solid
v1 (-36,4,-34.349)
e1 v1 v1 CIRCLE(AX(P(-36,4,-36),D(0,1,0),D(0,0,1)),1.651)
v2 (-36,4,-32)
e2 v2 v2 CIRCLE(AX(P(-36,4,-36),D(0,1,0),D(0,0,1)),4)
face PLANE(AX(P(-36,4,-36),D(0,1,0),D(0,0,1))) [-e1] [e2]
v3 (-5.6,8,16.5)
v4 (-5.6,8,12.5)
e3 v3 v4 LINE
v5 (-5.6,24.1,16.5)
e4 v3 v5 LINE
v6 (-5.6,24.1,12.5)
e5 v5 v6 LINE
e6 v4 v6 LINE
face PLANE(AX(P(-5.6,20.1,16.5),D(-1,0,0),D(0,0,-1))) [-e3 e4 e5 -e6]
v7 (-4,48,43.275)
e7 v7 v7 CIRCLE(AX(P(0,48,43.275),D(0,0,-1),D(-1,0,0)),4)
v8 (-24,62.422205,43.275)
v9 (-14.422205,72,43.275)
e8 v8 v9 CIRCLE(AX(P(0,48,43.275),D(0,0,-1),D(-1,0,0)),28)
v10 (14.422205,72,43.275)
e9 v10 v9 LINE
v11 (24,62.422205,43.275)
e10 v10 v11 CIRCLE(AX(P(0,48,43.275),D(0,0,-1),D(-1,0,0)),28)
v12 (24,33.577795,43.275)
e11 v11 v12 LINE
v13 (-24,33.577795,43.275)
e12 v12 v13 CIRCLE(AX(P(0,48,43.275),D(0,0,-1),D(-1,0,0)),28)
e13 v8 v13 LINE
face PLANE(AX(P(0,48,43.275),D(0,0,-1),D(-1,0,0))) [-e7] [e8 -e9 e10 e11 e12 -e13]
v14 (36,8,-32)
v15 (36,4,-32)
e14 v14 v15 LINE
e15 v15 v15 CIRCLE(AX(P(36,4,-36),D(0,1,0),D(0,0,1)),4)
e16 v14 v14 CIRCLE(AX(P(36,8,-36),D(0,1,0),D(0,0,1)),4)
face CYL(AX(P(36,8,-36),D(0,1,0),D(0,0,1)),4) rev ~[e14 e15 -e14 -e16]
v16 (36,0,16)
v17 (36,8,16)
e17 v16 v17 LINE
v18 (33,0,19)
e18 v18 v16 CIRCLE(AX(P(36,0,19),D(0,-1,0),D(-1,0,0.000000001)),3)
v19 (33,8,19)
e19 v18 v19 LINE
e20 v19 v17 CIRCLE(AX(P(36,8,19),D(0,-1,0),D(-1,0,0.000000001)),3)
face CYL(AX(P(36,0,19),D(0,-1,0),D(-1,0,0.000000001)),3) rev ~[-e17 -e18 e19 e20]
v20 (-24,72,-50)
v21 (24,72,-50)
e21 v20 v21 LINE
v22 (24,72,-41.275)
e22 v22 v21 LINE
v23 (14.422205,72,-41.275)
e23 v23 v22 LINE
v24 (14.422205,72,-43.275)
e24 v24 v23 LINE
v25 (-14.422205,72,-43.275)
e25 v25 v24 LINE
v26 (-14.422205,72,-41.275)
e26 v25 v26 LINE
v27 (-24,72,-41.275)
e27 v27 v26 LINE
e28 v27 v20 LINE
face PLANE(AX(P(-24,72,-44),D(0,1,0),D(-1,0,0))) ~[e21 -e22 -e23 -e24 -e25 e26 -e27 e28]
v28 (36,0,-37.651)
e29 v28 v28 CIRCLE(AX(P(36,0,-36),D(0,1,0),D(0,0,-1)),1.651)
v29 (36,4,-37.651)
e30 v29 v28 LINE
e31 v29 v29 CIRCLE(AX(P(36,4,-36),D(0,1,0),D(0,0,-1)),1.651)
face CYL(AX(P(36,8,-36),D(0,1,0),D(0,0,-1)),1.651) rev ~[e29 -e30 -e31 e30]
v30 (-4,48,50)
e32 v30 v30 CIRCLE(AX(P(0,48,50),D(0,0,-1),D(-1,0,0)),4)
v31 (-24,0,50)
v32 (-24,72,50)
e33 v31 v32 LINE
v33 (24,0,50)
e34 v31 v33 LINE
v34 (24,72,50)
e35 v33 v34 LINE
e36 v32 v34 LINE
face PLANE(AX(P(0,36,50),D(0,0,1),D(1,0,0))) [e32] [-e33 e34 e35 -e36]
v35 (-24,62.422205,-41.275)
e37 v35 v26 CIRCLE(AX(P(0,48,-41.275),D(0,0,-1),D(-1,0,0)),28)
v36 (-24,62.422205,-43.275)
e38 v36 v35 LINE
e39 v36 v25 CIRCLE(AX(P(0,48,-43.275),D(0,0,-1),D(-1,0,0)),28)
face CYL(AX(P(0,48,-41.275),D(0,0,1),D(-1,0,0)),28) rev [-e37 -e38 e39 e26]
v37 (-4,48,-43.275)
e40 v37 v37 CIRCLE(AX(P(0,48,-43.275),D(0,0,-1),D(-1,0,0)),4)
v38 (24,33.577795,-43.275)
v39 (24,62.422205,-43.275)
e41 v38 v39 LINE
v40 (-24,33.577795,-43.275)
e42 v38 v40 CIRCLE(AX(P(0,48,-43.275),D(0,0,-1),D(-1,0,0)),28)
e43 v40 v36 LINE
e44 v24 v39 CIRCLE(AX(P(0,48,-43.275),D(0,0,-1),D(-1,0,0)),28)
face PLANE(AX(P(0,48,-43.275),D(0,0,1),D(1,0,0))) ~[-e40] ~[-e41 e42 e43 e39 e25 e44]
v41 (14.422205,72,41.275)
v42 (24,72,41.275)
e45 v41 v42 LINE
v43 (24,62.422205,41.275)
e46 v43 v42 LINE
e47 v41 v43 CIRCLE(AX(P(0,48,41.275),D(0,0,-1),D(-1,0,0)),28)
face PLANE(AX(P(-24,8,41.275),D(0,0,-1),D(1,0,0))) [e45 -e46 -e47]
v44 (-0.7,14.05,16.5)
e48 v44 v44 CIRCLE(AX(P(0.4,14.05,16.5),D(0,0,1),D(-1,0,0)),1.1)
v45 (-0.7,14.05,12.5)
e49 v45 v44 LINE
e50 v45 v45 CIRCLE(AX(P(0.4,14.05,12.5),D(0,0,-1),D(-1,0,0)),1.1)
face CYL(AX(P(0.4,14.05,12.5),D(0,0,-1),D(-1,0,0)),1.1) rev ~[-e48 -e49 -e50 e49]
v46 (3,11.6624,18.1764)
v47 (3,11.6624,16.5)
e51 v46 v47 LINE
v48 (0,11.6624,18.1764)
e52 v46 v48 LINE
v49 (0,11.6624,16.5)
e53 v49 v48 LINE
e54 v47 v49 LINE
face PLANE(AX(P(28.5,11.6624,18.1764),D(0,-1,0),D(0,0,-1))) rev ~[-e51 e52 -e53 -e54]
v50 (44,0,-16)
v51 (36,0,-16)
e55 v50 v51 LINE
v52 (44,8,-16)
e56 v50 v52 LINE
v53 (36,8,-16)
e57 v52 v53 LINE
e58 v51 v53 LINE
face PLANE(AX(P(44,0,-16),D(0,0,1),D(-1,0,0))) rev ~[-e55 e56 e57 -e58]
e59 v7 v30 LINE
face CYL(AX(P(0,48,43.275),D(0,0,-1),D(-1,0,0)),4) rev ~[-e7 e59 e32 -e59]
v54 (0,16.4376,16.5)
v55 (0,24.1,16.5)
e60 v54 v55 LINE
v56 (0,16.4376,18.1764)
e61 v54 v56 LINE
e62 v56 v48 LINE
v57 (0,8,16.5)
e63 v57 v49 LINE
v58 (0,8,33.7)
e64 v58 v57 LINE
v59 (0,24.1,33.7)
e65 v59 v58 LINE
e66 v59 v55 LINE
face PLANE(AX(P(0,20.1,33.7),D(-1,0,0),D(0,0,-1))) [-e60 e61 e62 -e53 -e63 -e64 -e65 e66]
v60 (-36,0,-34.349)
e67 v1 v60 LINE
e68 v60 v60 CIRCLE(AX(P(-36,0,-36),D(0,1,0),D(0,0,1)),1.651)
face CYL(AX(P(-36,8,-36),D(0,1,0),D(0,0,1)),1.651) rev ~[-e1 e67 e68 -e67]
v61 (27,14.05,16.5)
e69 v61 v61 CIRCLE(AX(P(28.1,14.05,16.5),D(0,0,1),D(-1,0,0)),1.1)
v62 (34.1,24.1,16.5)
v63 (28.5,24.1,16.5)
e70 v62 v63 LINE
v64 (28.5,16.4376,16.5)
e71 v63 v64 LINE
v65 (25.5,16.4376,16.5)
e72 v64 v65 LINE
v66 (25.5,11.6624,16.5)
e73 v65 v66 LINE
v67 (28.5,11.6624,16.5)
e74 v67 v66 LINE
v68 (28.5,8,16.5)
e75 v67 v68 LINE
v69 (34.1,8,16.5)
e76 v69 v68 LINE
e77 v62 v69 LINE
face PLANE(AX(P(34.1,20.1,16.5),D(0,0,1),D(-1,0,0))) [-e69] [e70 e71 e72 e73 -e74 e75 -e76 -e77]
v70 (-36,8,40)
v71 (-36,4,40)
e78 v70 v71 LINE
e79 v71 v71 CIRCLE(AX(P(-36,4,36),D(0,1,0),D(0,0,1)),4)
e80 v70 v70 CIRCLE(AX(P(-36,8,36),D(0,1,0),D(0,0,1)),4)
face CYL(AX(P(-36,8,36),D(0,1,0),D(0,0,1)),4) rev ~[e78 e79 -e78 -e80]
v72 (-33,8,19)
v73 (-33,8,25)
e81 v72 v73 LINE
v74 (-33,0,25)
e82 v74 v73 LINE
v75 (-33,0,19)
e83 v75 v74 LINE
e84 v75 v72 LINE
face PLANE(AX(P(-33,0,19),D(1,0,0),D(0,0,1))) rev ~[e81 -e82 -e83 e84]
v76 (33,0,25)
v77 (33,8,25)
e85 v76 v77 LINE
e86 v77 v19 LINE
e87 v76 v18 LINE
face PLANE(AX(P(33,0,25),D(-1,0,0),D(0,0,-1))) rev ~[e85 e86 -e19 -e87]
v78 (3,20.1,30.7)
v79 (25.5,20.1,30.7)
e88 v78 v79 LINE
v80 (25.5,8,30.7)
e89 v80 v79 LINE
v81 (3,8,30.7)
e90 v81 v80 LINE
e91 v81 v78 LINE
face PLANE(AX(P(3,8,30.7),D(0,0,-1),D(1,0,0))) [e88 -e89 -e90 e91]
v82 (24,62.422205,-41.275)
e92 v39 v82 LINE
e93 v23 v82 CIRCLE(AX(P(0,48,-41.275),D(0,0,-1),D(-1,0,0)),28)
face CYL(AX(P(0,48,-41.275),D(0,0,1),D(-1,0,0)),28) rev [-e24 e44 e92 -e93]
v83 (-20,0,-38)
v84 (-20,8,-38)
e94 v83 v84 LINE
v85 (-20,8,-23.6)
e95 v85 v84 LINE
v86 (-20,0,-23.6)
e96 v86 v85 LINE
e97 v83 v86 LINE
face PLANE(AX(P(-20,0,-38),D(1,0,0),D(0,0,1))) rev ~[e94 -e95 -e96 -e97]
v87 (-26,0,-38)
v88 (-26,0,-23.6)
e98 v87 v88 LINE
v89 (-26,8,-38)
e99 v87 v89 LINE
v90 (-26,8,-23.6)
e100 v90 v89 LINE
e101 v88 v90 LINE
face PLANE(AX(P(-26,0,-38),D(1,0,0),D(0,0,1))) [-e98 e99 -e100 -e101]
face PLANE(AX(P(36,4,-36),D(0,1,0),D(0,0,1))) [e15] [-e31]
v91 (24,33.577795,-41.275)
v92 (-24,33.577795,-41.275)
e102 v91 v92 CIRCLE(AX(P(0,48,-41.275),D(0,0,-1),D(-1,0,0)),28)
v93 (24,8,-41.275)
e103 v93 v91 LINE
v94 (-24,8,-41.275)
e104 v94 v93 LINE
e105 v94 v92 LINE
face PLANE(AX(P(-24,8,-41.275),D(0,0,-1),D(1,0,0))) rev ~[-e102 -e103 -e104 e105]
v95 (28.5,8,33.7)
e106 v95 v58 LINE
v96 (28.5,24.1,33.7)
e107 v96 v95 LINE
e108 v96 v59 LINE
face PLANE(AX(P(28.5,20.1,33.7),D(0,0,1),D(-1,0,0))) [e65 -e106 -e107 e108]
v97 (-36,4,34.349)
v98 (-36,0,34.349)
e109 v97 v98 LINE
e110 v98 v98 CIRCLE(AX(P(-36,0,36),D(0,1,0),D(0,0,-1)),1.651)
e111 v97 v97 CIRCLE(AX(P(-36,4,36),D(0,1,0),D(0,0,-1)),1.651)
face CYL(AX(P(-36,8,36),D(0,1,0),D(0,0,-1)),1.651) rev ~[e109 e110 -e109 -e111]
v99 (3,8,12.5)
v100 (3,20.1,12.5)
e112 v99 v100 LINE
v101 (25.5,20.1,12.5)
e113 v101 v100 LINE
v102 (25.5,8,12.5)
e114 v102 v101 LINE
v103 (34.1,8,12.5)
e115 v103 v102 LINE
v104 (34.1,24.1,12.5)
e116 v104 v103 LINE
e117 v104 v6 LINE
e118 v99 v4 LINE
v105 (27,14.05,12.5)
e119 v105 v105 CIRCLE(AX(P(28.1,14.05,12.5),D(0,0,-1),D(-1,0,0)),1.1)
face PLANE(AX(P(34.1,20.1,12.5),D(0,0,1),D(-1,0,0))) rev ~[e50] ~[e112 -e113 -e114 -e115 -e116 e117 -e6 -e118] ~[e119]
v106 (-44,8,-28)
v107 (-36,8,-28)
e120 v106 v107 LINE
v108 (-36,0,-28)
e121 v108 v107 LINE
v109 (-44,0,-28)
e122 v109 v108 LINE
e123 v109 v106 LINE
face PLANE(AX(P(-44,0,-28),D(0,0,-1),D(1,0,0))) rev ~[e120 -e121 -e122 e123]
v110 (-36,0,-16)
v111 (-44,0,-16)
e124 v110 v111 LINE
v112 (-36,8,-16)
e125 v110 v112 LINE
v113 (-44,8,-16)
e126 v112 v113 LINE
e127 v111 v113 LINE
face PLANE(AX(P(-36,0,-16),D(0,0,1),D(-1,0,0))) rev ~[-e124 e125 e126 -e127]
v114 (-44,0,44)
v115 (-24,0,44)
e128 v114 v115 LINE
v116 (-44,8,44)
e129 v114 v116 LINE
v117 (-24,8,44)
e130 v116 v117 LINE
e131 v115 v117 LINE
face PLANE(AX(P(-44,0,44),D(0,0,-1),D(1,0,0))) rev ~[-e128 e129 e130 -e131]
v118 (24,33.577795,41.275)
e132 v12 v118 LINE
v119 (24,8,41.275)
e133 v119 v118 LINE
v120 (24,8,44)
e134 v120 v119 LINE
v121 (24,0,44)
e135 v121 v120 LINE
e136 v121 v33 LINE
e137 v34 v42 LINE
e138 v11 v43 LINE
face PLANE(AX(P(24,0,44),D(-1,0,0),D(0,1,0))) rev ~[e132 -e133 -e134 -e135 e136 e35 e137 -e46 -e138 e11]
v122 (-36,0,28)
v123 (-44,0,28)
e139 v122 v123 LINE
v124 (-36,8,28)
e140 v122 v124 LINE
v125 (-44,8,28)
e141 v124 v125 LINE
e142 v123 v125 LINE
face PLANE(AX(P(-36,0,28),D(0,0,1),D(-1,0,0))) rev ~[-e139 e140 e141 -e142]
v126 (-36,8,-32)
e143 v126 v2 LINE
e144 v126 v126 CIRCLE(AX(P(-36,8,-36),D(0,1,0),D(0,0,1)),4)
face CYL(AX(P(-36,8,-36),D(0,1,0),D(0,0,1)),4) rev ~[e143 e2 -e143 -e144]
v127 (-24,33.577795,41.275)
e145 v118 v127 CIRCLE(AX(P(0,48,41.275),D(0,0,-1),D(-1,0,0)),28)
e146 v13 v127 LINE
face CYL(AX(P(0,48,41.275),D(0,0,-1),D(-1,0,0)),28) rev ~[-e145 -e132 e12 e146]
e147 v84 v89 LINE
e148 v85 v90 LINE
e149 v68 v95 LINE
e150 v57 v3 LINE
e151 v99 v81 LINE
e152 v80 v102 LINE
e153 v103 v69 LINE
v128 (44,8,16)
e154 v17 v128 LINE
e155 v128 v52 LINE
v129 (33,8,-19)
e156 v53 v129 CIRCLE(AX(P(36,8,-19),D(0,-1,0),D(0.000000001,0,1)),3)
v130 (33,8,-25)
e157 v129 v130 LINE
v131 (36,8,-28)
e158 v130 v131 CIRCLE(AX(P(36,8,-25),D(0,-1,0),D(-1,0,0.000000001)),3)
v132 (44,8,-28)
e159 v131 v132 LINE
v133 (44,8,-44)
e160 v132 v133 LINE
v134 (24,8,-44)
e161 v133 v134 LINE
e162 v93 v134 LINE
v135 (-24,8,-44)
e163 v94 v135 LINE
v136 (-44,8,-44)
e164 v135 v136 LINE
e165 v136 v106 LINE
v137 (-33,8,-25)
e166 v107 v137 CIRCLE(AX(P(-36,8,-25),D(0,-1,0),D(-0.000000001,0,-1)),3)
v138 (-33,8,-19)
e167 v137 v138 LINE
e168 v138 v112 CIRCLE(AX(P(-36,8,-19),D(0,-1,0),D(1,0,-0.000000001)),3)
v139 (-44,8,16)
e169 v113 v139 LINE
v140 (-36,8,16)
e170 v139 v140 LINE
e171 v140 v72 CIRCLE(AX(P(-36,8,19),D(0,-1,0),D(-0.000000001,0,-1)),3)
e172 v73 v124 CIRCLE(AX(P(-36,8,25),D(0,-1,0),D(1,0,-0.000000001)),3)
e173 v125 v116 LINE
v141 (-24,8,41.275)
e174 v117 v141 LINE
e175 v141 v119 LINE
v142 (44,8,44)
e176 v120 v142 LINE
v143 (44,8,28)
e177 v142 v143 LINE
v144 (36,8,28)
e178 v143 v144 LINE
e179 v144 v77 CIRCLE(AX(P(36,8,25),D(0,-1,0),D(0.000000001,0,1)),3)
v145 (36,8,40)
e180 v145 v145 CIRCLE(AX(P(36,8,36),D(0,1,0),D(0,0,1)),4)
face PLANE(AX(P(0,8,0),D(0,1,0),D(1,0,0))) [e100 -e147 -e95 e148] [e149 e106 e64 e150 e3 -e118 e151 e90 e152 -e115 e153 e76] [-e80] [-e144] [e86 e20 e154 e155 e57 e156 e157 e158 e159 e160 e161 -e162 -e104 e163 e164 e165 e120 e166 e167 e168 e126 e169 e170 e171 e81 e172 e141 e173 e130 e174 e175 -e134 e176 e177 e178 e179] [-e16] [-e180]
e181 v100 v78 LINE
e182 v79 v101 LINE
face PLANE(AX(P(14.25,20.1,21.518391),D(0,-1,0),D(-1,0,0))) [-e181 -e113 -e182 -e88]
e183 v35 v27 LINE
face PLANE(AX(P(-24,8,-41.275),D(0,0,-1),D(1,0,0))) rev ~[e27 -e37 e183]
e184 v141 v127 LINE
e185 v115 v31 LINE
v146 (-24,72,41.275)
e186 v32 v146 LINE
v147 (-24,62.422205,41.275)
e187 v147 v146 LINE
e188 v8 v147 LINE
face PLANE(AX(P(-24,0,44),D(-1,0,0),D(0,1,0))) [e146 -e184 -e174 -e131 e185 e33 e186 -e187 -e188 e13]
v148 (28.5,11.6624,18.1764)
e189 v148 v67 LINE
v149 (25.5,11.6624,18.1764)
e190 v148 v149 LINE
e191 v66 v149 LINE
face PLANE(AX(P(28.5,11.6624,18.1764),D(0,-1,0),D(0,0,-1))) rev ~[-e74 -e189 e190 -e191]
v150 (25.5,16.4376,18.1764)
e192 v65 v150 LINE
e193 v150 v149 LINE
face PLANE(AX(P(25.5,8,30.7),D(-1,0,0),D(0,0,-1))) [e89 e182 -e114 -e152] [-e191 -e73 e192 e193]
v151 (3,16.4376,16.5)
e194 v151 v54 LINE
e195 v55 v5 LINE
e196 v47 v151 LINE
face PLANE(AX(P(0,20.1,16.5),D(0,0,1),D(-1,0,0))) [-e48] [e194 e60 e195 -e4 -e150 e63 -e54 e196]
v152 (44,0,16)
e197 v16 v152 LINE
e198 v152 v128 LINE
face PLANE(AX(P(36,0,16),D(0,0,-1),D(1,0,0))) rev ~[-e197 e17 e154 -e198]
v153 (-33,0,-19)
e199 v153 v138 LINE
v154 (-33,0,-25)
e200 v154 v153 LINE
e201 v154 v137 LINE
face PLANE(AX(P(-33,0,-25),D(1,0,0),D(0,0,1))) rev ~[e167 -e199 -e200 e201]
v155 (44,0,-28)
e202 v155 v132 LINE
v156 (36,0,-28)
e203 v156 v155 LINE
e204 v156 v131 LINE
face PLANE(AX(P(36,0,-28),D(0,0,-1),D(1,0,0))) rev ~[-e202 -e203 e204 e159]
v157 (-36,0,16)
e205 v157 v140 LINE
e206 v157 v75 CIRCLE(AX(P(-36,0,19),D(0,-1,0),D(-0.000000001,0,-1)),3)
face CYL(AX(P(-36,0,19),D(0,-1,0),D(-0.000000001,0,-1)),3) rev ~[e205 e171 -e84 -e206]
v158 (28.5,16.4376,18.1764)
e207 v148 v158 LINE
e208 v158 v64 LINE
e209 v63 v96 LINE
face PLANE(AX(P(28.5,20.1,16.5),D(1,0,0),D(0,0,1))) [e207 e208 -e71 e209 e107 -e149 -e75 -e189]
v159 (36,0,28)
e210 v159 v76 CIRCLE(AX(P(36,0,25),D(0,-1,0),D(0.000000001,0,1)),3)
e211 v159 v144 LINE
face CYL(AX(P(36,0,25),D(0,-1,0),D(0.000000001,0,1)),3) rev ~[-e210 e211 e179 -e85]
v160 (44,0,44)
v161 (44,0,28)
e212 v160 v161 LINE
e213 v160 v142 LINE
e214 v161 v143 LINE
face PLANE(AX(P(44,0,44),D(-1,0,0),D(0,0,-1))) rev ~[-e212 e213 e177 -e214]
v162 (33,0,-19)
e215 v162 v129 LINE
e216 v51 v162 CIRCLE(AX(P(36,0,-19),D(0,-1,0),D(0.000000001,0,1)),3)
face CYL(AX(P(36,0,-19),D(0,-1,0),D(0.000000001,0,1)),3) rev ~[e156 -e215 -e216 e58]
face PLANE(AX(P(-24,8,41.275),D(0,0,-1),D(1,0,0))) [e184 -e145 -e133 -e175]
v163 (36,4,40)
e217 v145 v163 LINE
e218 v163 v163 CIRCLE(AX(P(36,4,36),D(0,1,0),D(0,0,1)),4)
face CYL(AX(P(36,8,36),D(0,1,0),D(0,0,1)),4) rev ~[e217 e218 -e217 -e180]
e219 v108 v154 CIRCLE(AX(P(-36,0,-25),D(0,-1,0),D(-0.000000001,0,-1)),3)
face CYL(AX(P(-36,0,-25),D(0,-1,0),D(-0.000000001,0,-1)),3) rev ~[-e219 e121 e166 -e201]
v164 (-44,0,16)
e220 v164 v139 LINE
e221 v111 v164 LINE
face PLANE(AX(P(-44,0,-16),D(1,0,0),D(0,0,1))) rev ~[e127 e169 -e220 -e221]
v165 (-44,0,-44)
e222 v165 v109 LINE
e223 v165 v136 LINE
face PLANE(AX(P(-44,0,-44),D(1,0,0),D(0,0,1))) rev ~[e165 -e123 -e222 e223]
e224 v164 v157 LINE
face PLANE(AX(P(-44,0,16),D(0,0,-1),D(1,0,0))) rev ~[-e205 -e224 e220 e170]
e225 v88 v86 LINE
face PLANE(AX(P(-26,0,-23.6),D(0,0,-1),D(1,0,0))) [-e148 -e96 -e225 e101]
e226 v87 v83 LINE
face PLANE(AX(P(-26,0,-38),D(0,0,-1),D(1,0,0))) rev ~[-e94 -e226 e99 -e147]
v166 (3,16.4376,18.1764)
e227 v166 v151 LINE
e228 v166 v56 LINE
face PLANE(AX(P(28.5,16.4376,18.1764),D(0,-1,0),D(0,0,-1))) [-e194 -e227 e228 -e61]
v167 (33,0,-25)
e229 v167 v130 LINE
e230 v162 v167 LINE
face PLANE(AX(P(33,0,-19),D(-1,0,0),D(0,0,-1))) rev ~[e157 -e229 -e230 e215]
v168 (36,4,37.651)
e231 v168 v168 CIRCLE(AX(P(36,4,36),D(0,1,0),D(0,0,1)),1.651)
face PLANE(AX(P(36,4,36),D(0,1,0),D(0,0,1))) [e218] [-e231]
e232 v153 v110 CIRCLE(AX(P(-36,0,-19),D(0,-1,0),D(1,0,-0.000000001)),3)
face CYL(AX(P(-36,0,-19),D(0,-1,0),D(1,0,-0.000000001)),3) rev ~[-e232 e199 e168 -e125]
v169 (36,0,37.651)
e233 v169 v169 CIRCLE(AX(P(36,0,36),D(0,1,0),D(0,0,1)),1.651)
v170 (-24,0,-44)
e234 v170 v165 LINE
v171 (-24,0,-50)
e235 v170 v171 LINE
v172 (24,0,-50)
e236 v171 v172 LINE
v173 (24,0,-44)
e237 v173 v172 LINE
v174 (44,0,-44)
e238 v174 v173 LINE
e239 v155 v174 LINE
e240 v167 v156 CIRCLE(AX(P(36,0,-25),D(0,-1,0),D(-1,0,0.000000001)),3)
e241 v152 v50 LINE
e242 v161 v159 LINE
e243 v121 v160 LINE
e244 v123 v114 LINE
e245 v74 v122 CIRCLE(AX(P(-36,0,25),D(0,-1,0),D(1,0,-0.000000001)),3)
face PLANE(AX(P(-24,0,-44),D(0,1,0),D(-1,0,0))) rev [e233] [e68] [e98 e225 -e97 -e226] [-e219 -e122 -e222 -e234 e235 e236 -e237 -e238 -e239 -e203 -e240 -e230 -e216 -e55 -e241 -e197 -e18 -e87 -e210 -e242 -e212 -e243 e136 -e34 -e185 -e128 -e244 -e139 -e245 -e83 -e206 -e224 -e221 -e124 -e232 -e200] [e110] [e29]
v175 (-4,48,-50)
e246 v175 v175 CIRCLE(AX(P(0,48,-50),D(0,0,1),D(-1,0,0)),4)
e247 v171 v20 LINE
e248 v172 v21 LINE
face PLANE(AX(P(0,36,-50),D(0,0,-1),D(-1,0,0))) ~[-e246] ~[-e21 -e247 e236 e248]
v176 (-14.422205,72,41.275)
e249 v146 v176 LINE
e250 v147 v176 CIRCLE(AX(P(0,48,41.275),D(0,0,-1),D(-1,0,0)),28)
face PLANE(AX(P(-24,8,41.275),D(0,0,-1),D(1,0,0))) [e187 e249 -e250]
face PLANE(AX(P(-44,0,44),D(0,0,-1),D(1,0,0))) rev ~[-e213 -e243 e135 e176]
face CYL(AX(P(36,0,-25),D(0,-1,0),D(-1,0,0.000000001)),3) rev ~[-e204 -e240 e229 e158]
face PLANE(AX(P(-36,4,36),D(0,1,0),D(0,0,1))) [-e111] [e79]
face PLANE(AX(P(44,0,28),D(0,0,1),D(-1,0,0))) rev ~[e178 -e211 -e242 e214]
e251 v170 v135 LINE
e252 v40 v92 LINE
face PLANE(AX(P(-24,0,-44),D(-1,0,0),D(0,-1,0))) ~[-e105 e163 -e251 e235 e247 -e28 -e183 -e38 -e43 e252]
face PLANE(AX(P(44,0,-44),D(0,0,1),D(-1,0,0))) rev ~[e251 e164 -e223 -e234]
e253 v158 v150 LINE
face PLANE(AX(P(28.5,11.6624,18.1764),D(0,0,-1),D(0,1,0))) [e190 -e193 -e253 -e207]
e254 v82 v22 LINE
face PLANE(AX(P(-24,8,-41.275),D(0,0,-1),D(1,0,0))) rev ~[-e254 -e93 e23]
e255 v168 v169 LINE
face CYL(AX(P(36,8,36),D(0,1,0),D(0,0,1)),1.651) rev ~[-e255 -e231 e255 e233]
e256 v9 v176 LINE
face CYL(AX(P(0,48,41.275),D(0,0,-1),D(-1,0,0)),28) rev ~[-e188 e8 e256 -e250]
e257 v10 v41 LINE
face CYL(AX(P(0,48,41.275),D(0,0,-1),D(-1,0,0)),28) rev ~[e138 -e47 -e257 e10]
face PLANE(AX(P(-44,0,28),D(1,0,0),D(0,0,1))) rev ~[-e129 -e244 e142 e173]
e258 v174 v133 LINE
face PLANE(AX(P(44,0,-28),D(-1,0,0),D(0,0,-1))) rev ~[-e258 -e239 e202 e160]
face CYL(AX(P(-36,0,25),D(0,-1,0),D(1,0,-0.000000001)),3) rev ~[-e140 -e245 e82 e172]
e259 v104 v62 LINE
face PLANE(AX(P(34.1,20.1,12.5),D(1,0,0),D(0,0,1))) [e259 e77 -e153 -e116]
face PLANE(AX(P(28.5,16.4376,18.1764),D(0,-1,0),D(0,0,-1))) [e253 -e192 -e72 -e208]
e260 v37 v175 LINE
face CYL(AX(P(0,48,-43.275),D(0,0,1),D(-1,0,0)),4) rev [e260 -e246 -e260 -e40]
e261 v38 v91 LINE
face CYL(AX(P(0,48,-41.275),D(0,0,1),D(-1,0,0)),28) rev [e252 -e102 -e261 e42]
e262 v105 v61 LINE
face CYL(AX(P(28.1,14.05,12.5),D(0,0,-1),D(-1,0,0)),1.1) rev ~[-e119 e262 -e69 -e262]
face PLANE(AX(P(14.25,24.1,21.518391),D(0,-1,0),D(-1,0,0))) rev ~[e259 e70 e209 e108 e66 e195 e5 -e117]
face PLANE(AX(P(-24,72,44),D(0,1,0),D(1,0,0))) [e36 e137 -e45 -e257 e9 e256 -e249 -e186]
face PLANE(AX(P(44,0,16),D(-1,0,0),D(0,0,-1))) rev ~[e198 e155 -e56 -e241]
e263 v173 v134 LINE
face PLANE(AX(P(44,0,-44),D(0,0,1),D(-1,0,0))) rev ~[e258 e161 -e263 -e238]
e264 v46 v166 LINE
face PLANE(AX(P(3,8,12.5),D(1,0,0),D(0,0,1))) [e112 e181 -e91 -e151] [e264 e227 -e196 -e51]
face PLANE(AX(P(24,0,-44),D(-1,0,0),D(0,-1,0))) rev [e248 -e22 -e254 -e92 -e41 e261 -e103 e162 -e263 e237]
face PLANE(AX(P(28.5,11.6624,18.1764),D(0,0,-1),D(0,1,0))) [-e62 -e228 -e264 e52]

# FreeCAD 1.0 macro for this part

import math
import FreeCAD as App
import Part
import Sketcher
Q = App.Units.Quantity


def add_polygon(sketch, points):
    """Adds a closed chain of lines whose ends are joined by coincident constraints."""
    first, n = sketch.GeometryCount, len(points)
    for a, b in zip(points, points[1:] + points[:1]):
        sketch.addGeometry(Part.LineSegment(App.Vector(*a, 0), App.Vector(*b, 0)), False)
    for i in range(n):
        sketch.addConstraint(Sketcher.Constraint("Coincident", first + i, 2, first + (i + 1) % n, 1))

doc = App.newDocument("Part")
body = doc.addObject("PartDesign::Body", "Body")

# Sketch on XZ plane
sketch1 = body.newObject("Sketcher::SketchObject", "Sketch")
sketch1.AttachmentSupport = (doc.getObject("XZ_Plane"), [""])
sketch1.MapMode = "FlatFace"
sketch1.addGeometry(Part.LineSegment(App.Vector(-44, -28, 0), App.Vector(-36, -28, 0)), False)
sketch1.addGeometry(Part.ArcOfCircle(Part.Circle(App.Vector(-36, -25, 0), App.Vector(0, 0, 1), 3), math.radians(-90), math.radians(0)), False)
sketch1.addGeometry(Part.LineSegment(App.Vector(-33, -25, 0), App.Vector(-33, -19, 0)), False)
sketch1.addGeometry(Part.ArcOfCircle(Part.Circle(App.Vector(-36, -19, 0), App.Vector(0, 0, 1), 3), math.radians(0), math.radians(90)), False)
sketch1.addGeometry(Part.LineSegment(App.Vector(-36, -16, 0), App.Vector(-44, -16, 0)), False)
sketch1.addGeometry(Part.LineSegment(App.Vector(-44, -16, 0), App.Vector(-44, 16, 0)), False)
sketch1.addGeometry(Part.LineSegment(App.Vector(-44, 16, 0), App.Vector(-36, 16, 0)), False)
sketch1.addGeometry(Part.ArcOfCircle(Part.Circle(App.Vector(-36, 19, 0), App.Vector(0, 0, 1), 3), math.radians(-90), math.radians(0)), False)
sketch1.addGeometry(Part.LineSegment(App.Vector(-33, 19, 0), App.Vector(-33, 25, 0)), False)
sketch1.addGeometry(Part.ArcOfCircle(Part.Circle(App.Vector(-36, 25, 0), App.Vector(0, 0, 1), 3), math.radians(0), math.radians(90)), False)
sketch1.addGeometry(Part.LineSegment(App.Vector(-36, 28, 0), App.Vector(-44, 28, 0)), False)
sketch1.addGeometry(Part.LineSegment(App.Vector(-44, 28, 0), App.Vector(-44, 44, 0)), False)
sketch1.addGeometry(Part.LineSegment(App.Vector(-44, 44, 0), App.Vector(44, 44, 0)), False)
sketch1.addGeometry(Part.LineSegment(App.Vector(44, 44, 0), App.Vector(44, 28, 0)), False)
sketch1.addGeometry(Part.LineSegment(App.Vector(44, 28, 0), App.Vector(36, 28, 0)), False)
sketch1.addGeometry(Part.ArcOfCircle(Part.Circle(App.Vector(36, 25, 0), App.Vector(0, 0, 1), 3), math.radians(90), math.radians(180)), False)
sketch1.addGeometry(Part.LineSegment(App.Vector(33, 25, 0), App.Vector(33, 19, 0)), False)
sketch1.addGeometry(Part.ArcOfCircle(Part.Circle(App.Vector(36, 19, 0), App.Vector(0, 0, 1), 3), math.radians(180), math.radians(270)), False)
sketch1.addGeometry(Part.LineSegment(App.Vector(36, 16, 0), App.Vector(44, 16, 0)), False)
sketch1.addGeometry(Part.LineSegment(App.Vector(44, 16, 0), App.Vector(44, -16, 0)), False)
sketch1.addGeometry(Part.LineSegment(App.Vector(44, -16, 0), App.Vector(36, -16, 0)), False)
sketch1.addGeometry(Part.ArcOfCircle(Part.Circle(App.Vector(36, -19, 0), App.Vector(0, 0, 1), 3), math.radians(90), math.radians(180)), False)
sketch1.addGeometry(Part.LineSegment(App.Vector(33, -19, 0), App.Vector(33, -25, 0)), False)
sketch1.addGeometry(Part.ArcOfCircle(Part.Circle(App.Vector(36, -25, 0), App.Vector(0, 0, 1), 3), math.radians(180), math.radians(270)), False)
sketch1.addGeometry(Part.LineSegment(App.Vector(36, -28, 0), App.Vector(44, -28, 0)), False)
sketch1.addGeometry(Part.LineSegment(App.Vector(44, -28, 0), App.Vector(44, -44, 0)), False)
sketch1.addGeometry(Part.LineSegment(App.Vector(44, -44, 0), App.Vector(-44, -44, 0)), False)
sketch1.addGeometry(Part.LineSegment(App.Vector(-44, -44, 0), App.Vector(-44, -28, 0)), False)
sketch1.addConstraint(Sketcher.Constraint("Tangent", 0, 2, 1, 1))
sketch1.addConstraint(Sketcher.Constraint("Tangent", 1, 2, 2, 1))
sketch1.addConstraint(Sketcher.Constraint("Tangent", 2, 2, 3, 1))
sketch1.addConstraint(Sketcher.Constraint("Tangent", 3, 2, 4, 1))
sketch1.addConstraint(Sketcher.Constraint("Coincident", 4, 2, 5, 1))
sketch1.addConstraint(Sketcher.Constraint("Coincident", 5, 2, 6, 1))
sketch1.addConstraint(Sketcher.Constraint("Tangent", 6, 2, 7, 1))
sketch1.addConstraint(Sketcher.Constraint("Tangent", 7, 2, 8, 1))
sketch1.addConstraint(Sketcher.Constraint("Tangent", 8, 2, 9, 1))
sketch1.addConstraint(Sketcher.Constraint("Tangent", 9, 2, 10, 1))
sketch1.addConstraint(Sketcher.Constraint("Coincident", 10, 2, 11, 1))
sketch1.addConstraint(Sketcher.Constraint("Coincident", 11, 2, 12, 1))
sketch1.addConstraint(Sketcher.Constraint("Coincident", 12, 2, 13, 1))
sketch1.addConstraint(Sketcher.Constraint("Coincident", 13, 2, 14, 1))
sketch1.addConstraint(Sketcher.Constraint("Tangent", 14, 2, 15, 1))
sketch1.addConstraint(Sketcher.Constraint("Tangent", 15, 2, 16, 1))
sketch1.addConstraint(Sketcher.Constraint("Tangent", 16, 2, 17, 1))
sketch1.addConstraint(Sketcher.Constraint("Tangent", 17, 2, 18, 1))
sketch1.addConstraint(Sketcher.Constraint("Coincident", 18, 2, 19, 1))
sketch1.addConstraint(Sketcher.Constraint("Coincident", 19, 2, 20, 1))
sketch1.addConstraint(Sketcher.Constraint("Tangent", 20, 2, 21, 1))
sketch1.addConstraint(Sketcher.Constraint("Tangent", 21, 2, 22, 1))
sketch1.addConstraint(Sketcher.Constraint("Tangent", 22, 2, 23, 1))
sketch1.addConstraint(Sketcher.Constraint("Tangent", 23, 2, 24, 1))
sketch1.addConstraint(Sketcher.Constraint("Coincident", 24, 2, 25, 1))
sketch1.addConstraint(Sketcher.Constraint("Coincident", 25, 2, 26, 1))
sketch1.addConstraint(Sketcher.Constraint("Coincident", 26, 2, 27, 1))
sketch1.addConstraint(Sketcher.Constraint("Coincident", 27, 2, 0, 1))
sketch1.addConstraint(Sketcher.Constraint("Horizontal", 0))
sketch1.addConstraint(Sketcher.Constraint("Vertical", 2))
sketch1.addConstraint(Sketcher.Constraint("Horizontal", 4))
sketch1.addConstraint(Sketcher.Constraint("Vertical", 5))
sketch1.addConstraint(Sketcher.Constraint("Horizontal", 6))
sketch1.addConstraint(Sketcher.Constraint("Vertical", 8))
sketch1.addConstraint(Sketcher.Constraint("Horizontal", 10))
sketch1.addConstraint(Sketcher.Constraint("Vertical", 11))
sketch1.addConstraint(Sketcher.Constraint("Horizontal", 12))
sketch1.addConstraint(Sketcher.Constraint("Vertical", 13))
sketch1.addConstraint(Sketcher.Constraint("Horizontal", 14))
sketch1.addConstraint(Sketcher.Constraint("Vertical", 16))
sketch1.addConstraint(Sketcher.Constraint("Horizontal", 18))
sketch1.addConstraint(Sketcher.Constraint("Vertical", 19))
sketch1.addConstraint(Sketcher.Constraint("Horizontal", 20))
sketch1.addConstraint(Sketcher.Constraint("Vertical", 22))
sketch1.addConstraint(Sketcher.Constraint("Horizontal", 24))
sketch1.addConstraint(Sketcher.Constraint("Vertical", 25))
sketch1.addConstraint(Sketcher.Constraint("Horizontal", 26))
sketch1.addConstraint(Sketcher.Constraint("Vertical", 27))
sketch1.addConstraint(Sketcher.Constraint("Equal", 1, 3))
sketch1.addConstraint(Sketcher.Constraint("Equal", 3, 7))
sketch1.addConstraint(Sketcher.Constraint("Equal", 7, 9))
sketch1.addConstraint(Sketcher.Constraint("Equal", 9, 15))
sketch1.addConstraint(Sketcher.Constraint("Equal", 15, 17))
sketch1.addConstraint(Sketcher.Constraint("Equal", 17, 21))
sketch1.addConstraint(Sketcher.Constraint("Equal", 21, 23))
sketch1.addConstraint(Sketcher.Constraint("Symmetric", 1, 3, 15, 3, -1, 1))
sketch1.addConstraint(Sketcher.Constraint("Symmetric", 7, 3, 21, 3, -1, 1))
sketch1.addConstraint(Sketcher.Constraint("Symmetric", 4, 2, 18, 2, -1, 1))
sketch1.addConstraint(Sketcher.Constraint("Symmetric", 10, 2, 24, 2, -1, 1))
sketch1.addConstraint(Sketcher.Constraint("Symmetric", 12, 2, 26, 2, -1, 1))
sketch1.addConstraint(Sketcher.Constraint("Symmetric", 9, 3, 15, 3, -2))
sketch1.addConstraint(Sketcher.Constraint("Horizontal", 7, 3, 17, 3))
sketch1.addConstraint(Sketcher.Constraint("Vertical", 5, 2, 10, 2))
sketch1.addConstraint(Sketcher.Constraint("Vertical", 13, 2, 18, 2))
sketch1.addConstraint(Sketcher.Constraint("Radius", 1, Q("3 mm")))
sketch1.addConstraint(Sketcher.Constraint("DistanceX", 0, 1, 0, 2, Q("8 mm")))
sketch1.addConstraint(Sketcher.Constraint("DistanceX", 12, 1, 12, 2, Q("88 mm")))
sketch1.addConstraint(Sketcher.Constraint("DistanceY", 2, 1, 2, 2, Q("6 mm")))
sketch1.addConstraint(Sketcher.Constraint("DistanceY", 5, 1, 5, 2, Q("32 mm")))
sketch1.addConstraint(Sketcher.Constraint("DistanceY", 11, 1, 11, 2, Q("16 mm")))
pad1 = body.newObject("PartDesign::Pad", "Pad")
pad1.Profile = sketch1
pad1.Length = 8
pad1.Reversed = True

# Sketch on XZ plane
sketch2 = body.newObject("Sketcher::SketchObject", "Sketch001")
sketch2.AttachmentSupport = (doc.getObject("XZ_Plane"), [""])
sketch2.MapMode = "FlatFace"
sketch2.AttachmentOffset = App.Placement(App.Vector(0, 0, -8), App.Rotation())
sketch2.addGeometry(Part.Circle(App.Vector(-36, -36, 0), App.Vector(0, 0, 1), 1.7), False)
sketch2.addGeometry(Part.Circle(App.Vector(36, -36, 0), App.Vector(0, 0, 1), 1.7), False)
sketch2.addGeometry(Part.Circle(App.Vector(36, 36, 0), App.Vector(0, 0, 1), 1.7), False)
sketch2.addGeometry(Part.Circle(App.Vector(-36, 36, 0), App.Vector(0, 0, 1), 1.7), False)
sketch2.addConstraint(Sketcher.Constraint("Equal", 0, 1))
sketch2.addConstraint(Sketcher.Constraint("Equal", 1, 2))
sketch2.addConstraint(Sketcher.Constraint("Equal", 2, 3))
sketch2.addConstraint(Sketcher.Constraint("Symmetric", 0, 3, 2, 3, -1, 1))
sketch2.addConstraint(Sketcher.Constraint("Symmetric", 1, 3, 3, 3, -1, 1))
sketch2.addConstraint(Sketcher.Constraint("Symmetric", 0, 3, 1, 3, -2))
sketch2.addConstraint(Sketcher.Constraint("Diameter", 0, Q("3.302 mm")))
sketch2.addConstraint(Sketcher.Constraint("DistanceX", 0, 3, -1, 1, Q("36 mm")))
sketch2.addConstraint(Sketcher.Constraint("DistanceY", 0, 3, -1, 1, Q("36 mm")))
pocket1 = body.newObject("PartDesign::Pocket", "Pocket")
pocket1.Profile = sketch2
pocket1.Type = "ThroughAll"
pocket1.Reversed = True

# Sketch on XZ plane
sketch3 = body.newObject("Sketcher::SketchObject", "Sketch002")
sketch3.AttachmentSupport = (doc.getObject("XZ_Plane"), [""])
sketch3.MapMode = "FlatFace"
sketch3.AttachmentOffset = App.Placement(App.Vector(0, 0, -8), App.Rotation())
sketch3.addGeometry(Part.Circle(App.Vector(-36, -36, 0), App.Vector(0, 0, 1), 4), False)
sketch3.addGeometry(Part.Circle(App.Vector(36, -36, 0), App.Vector(0, 0, 1), 4), False)
sketch3.addGeometry(Part.Circle(App.Vector(36, 36, 0), App.Vector(0, 0, 1), 4), False)
sketch3.addGeometry(Part.Circle(App.Vector(-36, 36, 0), App.Vector(0, 0, 1), 4), False)
sketch3.addConstraint(Sketcher.Constraint("Equal", 0, 1))
sketch3.addConstraint(Sketcher.Constraint("Equal", 1, 2))
sketch3.addConstraint(Sketcher.Constraint("Equal", 2, 3))
sketch3.addConstraint(Sketcher.Constraint("Symmetric", 0, 3, 2, 3, -1, 1))
sketch3.addConstraint(Sketcher.Constraint("Symmetric", 1, 3, 3, 3, -1, 1))
sketch3.addConstraint(Sketcher.Constraint("Symmetric", 0, 3, 1, 3, -2))
sketch3.addConstraint(Sketcher.Constraint("Diameter", 0, Q("8 mm")))
sketch3.addConstraint(Sketcher.Constraint("DistanceX", 0, 3, -1, 1, Q("36 mm")))
sketch3.addConstraint(Sketcher.Constraint("DistanceY", 0, 3, -1, 1, Q("36 mm")))
pocket2 = body.newObject("PartDesign::Pocket", "Pocket001")
pocket2.Profile = sketch3
pocket2.Length = 4
pocket2.Reversed = True

# Sketch on XZ plane
sketch4 = body.newObject("Sketcher::SketchObject", "Sketch003")
sketch4.AttachmentSupport = (doc.getObject("XZ_Plane"), [""])
sketch4.MapMode = "FlatFace"
sketch4.AttachmentOffset = App.Placement(App.Vector(0, 0, -8), App.Rotation())
add_polygon(sketch4, [(3, 12.5), (-5.6, 12.5), (-5.6, 16.5), (0, 16.5), (0, 33.7), (28.5, 33.7), (28.5, 16.5), (34.1, 16.5), (34.1, 12.5), (25.5, 12.5), (25.5, 30.7), (3, 30.7)])  # lines 0-11
sketch4.addConstraint(Sketcher.Constraint("Horizontal", 0))
sketch4.addConstraint(Sketcher.Constraint("Vertical", 1))
sketch4.addConstraint(Sketcher.Constraint("Horizontal", 2))
sketch4.addConstraint(Sketcher.Constraint("Vertical", 3))
sketch4.addConstraint(Sketcher.Constraint("Horizontal", 4))
sketch4.addConstraint(Sketcher.Constraint("Vertical", 5))
sketch4.addConstraint(Sketcher.Constraint("Horizontal", 6))
sketch4.addConstraint(Sketcher.Constraint("Vertical", 7))
sketch4.addConstraint(Sketcher.Constraint("Horizontal", 8))
sketch4.addConstraint(Sketcher.Constraint("Vertical", 9))
sketch4.addConstraint(Sketcher.Constraint("Horizontal", 10))
sketch4.addConstraint(Sketcher.Constraint("Vertical", 11))
sketch4.addConstraint(Sketcher.Constraint("PointOnObject", 2, 2, -2))
sketch4.addConstraint(Sketcher.Constraint("Horizontal", 2, 2, 5, 2))
sketch4.addConstraint(Sketcher.Constraint("Horizontal", 0, 2, 7, 2))
sketch4.addConstraint(Sketcher.Constraint("Equal", 2, 6))
sketch4.addConstraint(Sketcher.Constraint("Equal", 0, 8))
sketch4.addConstraint(Sketcher.Constraint("DistanceY", 1, 1, 1, 2, Q("4 mm")))
sketch4.addConstraint(Sketcher.Constraint("DistanceX", 0, 2, 0, 1, Q("8.6 mm")))
sketch4.addConstraint(Sketcher.Constraint("DistanceX", 2, 1, 2, 2, Q("5.6 mm")))
sketch4.addConstraint(Sketcher.Constraint("DistanceX", 4, 1, 4, 2, Q("28.5 mm")))
sketch4.addConstraint(Sketcher.Constraint("DistanceY", 3, 1, 3, 2, Q("17.2 mm")))
sketch4.addConstraint(Sketcher.Constraint("DistanceY", 9, 1, 9, 2, Q("18.2 mm")))
sketch4.addConstraint(Sketcher.Constraint("DistanceY", -1, 1, 0, 2, Q("12.5 mm")))
pad2 = body.newObject("PartDesign::Pad", "Pad001")
pad2.Profile = sketch4
pad2.Length = 12.1
pad2.Reversed = True

# Sketch on XZ plane
sketch5 = body.newObject("Sketcher::SketchObject", "Sketch004")
sketch5.AttachmentSupport = (doc.getObject("XZ_Plane"), [""])
sketch5.MapMode = "FlatFace"
sketch5.AttachmentOffset = App.Placement(App.Vector(0, 0, -20.1), App.Rotation())
add_polygon(sketch5, [(34.1, 12.5), (-5.6, 12.5), (-5.6, 16.5), (0, 16.5), (0, 33.7), (28.5, 33.7), (28.5, 16.5), (34.1, 16.5)])  # lines 0-7
sketch5.addConstraint(Sketcher.Constraint("Horizontal", 0))
sketch5.addConstraint(Sketcher.Constraint("Vertical", 1))
sketch5.addConstraint(Sketcher.Constraint("Horizontal", 2))
sketch5.addConstraint(Sketcher.Constraint("Vertical", 3))
sketch5.addConstraint(Sketcher.Constraint("Horizontal", 4))
sketch5.addConstraint(Sketcher.Constraint("Vertical", 5))
sketch5.addConstraint(Sketcher.Constraint("Horizontal", 6))
sketch5.addConstraint(Sketcher.Constraint("Vertical", 7))
sketch5.addConstraint(Sketcher.Constraint("PointOnObject", 2, 2, -2))
sketch5.addConstraint(Sketcher.Constraint("Horizontal", 2, 2, 5, 2))
sketch5.addConstraint(Sketcher.Constraint("Equal", 2, 6))
sketch5.addConstraint(Sketcher.Constraint("DistanceY", 1, 1, 1, 2, Q("4 mm")))
sketch5.addConstraint(Sketcher.Constraint("DistanceX", 0, 2, 0, 1, Q("39.7 mm")))
sketch5.addConstraint(Sketcher.Constraint("DistanceX", 2, 1, 2, 2, Q("5.6 mm")))
sketch5.addConstraint(Sketcher.Constraint("DistanceY", 3, 1, 3, 2, Q("17.2 mm")))
sketch5.addConstraint(Sketcher.Constraint("DistanceY", -1, 1, 0, 2, Q("12.5 mm")))
pad3 = body.newObject("PartDesign::Pad", "Pad002")
pad3.Profile = sketch5
pad3.Length = 4
pad3.Reversed = True

# Sketch on XY plane
sketch6 = body.newObject("Sketcher::SketchObject", "Sketch005")
sketch6.AttachmentSupport = (doc.getObject("XY_Plane"), [""])
sketch6.MapMode = "FlatFace"
sketch6.AttachmentOffset = App.Placement(App.Vector(0, 0, 12.5), App.Rotation())
sketch6.addGeometry(Part.Circle(App.Vector(28.1, 14.1, 0), App.Vector(0, 0, 1), 1.1), False)
sketch6.addGeometry(Part.Circle(App.Vector(0.4, 14.1, 0), App.Vector(0, 0, 1), 1.1), False)
sketch6.addConstraint(Sketcher.Constraint("Equal", 0, 1))
sketch6.addConstraint(Sketcher.Constraint("Horizontal", 0, 3, 1, 3))
sketch6.addConstraint(Sketcher.Constraint("Diameter", 0, Q("2.2 mm")))
sketch6.addConstraint(Sketcher.Constraint("DistanceX", -1, 1, 0, 3, Q("28.1 mm")))
sketch6.addConstraint(Sketcher.Constraint("DistanceX", -1, 1, 1, 3, Q("0.4 mm")))
sketch6.addConstraint(Sketcher.Constraint("DistanceY", -1, 1, 0, 3, Q("14.05 mm")))
pocket3 = body.newObject("PartDesign::Pocket", "Pocket002")
pocket3.Profile = sketch6
pocket3.Length = 4
pocket3.Reversed = True

# Sketch on YZ plane
sketch7 = body.newObject("Sketcher::SketchObject", "Sketch006")
sketch7.AttachmentSupport = (doc.getObject("YZ_Plane"), [""])
sketch7.MapMode = "FlatFace"
sketch7.AttachmentOffset = App.Placement(App.Vector(0, 0, 28.5), App.Rotation())
add_polygon(sketch7, [(16.4, 18.2), (11.7, 18.2), (11.7, 16.5), (16.4, 16.5)])  # lines 0-3
sketch7.addConstraint(Sketcher.Constraint("Horizontal", 0))
sketch7.addConstraint(Sketcher.Constraint("Vertical", 1))
sketch7.addConstraint(Sketcher.Constraint("Horizontal", 2))
sketch7.addConstraint(Sketcher.Constraint("Vertical", 3))
sketch7.addConstraint(Sketcher.Constraint("DistanceY", -1, 1, 1, 2, Q("16.5 mm")))
sketch7.addConstraint(Sketcher.Constraint("DistanceX", 0, 2, 0, 1, Q("4.7752 mm")))
sketch7.addConstraint(Sketcher.Constraint("DistanceY", 1, 2, 1, 1, Q("1.6764 mm")))
sketch7.addConstraint(Sketcher.Constraint("DistanceX", -1, 1, 0, 2, Q("11.6624 mm")))
pocket4 = body.newObject("PartDesign::Pocket", "Pocket003")
pocket4.Profile = sketch7
pocket4.Type = "ThroughAll"

# Sketch on XZ plane
sketch8 = body.newObject("Sketcher::SketchObject", "Sketch007")
sketch8.AttachmentSupport = (doc.getObject("XZ_Plane"), [""])
sketch8.MapMode = "FlatFace"
sketch8.AttachmentOffset = App.Placement(App.Vector(0, 0, -8), App.Rotation())
add_polygon(sketch8, [(-24, -44), (-24, -41.3), (24, -41.3), (24, -44)])  # lines 0-3
add_polygon(sketch8, [(-24, 41.3), (-24, 44), (24, 44), (24, 41.3)])  # lines 4-7
sketch8.addConstraint(Sketcher.Constraint("Vertical", 0))
sketch8.addConstraint(Sketcher.Constraint("Horizontal", 1))
sketch8.addConstraint(Sketcher.Constraint("Vertical", 2))
sketch8.addConstraint(Sketcher.Constraint("Horizontal", 3))
sketch8.addConstraint(Sketcher.Constraint("Vertical", 4))
sketch8.addConstraint(Sketcher.Constraint("Horizontal", 5))
sketch8.addConstraint(Sketcher.Constraint("Vertical", 6))
sketch8.addConstraint(Sketcher.Constraint("Horizontal", 7))
sketch8.addConstraint(Sketcher.Constraint("Symmetric", 2, 2, 4, 2, -1, 1))
sketch8.addConstraint(Sketcher.Constraint("Symmetric", 0, 2, 6, 2, -1, 1))
sketch8.addConstraint(Sketcher.Constraint("Vertical", 3, 2, 4, 2))
sketch8.addConstraint(Sketcher.Constraint("DistanceX", 1, 1, 1, 2, Q("48 mm")))
sketch8.addConstraint(Sketcher.Constraint("DistanceY", 2, 2, -1, 1, Q("44 mm")))
sketch8.addConstraint(Sketcher.Constraint("DistanceY", 0, 1, 0, 2, Q("2.725 mm")))
pad4 = body.newObject("PartDesign::Pad", "Pad003")
pad4.Profile = sketch8
pad4.Length = 64
pad4.Reversed = True

# Sketch on XY plane
sketch9 = body.newObject("Sketcher::SketchObject", "Sketch008")
sketch9.AttachmentSupport = (doc.getObject("XY_Plane"), [""])
sketch9.MapMode = "FlatFace"
sketch9.AttachmentOffset = App.Placement(App.Vector(0, 0, 44), App.Rotation())
add_polygon(sketch9, [(-24, 72), (-24, 0), (24, 0), (24, 72)])  # lines 0-3
sketch9.addConstraint(Sketcher.Constraint("Vertical", 0))
sketch9.addConstraint(Sketcher.Constraint("Horizontal", 1))
sketch9.addConstraint(Sketcher.Constraint("Vertical", 2))
sketch9.addConstraint(Sketcher.Constraint("Horizontal", 3))
sketch9.addConstraint(Sketcher.Constraint("Symmetric", 0, 2, 1, 2, -1, 1))
sketch9.addConstraint(Sketcher.Constraint("DistanceX", 1, 1, 1, 2, Q("48 mm")))
sketch9.addConstraint(Sketcher.Constraint("DistanceY", 0, 2, 0, 1, Q("72 mm")))
pad5 = body.newObject("PartDesign::Pad", "Pad004")
pad5.Profile = sketch9
pad5.Length = 6
doc.recompute()

mirrored = body.newObject("PartDesign::Mirrored", "Mirrored")
mirrored.Originals = [pad5]
mirrored.MirrorPlane = (doc.getObject("XY_Plane"), [""])
body.Tip = mirrored

# Sketch on XY plane
sketch10 = body.newObject("Sketcher::SketchObject", "Sketch009")
sketch10.AttachmentSupport = (doc.getObject("XY_Plane"), [""])
sketch10.MapMode = "FlatFace"
sketch10.AttachmentOffset = App.Placement(App.Vector(0, 0, 41.275), App.Rotation())
sketch10.addGeometry(Part.Circle(App.Vector(0, 48, 0), App.Vector(0, 0, 1), 28), False)
sketch10.addConstraint(Sketcher.Constraint("PointOnObject", 0, 3, -2))
sketch10.addConstraint(Sketcher.Constraint("Diameter", 0, Q("56 mm")))
sketch10.addConstraint(Sketcher.Constraint("DistanceY", -1, 1, 0, 3, Q("48 mm")))
pocket5 = body.newObject("PartDesign::Pocket", "Pocket004")
pocket5.Profile = sketch10
pocket5.Length = 2
pocket5.Reversed = True

# Sketch on XY plane
sketch11 = body.newObject("Sketcher::SketchObject", "Sketch010")
sketch11.AttachmentSupport = (doc.getObject("XY_Plane"), [""])
sketch11.MapMode = "FlatFace"
sketch11.AttachmentOffset = App.Placement(App.Vector(0, 0, 43.275), App.Rotation())
sketch11.addGeometry(Part.Circle(App.Vector(0, 48, 0), App.Vector(0, 0, 1), 4), False)
sketch11.addConstraint(Sketcher.Constraint("PointOnObject", 0, 3, -2))
sketch11.addConstraint(Sketcher.Constraint("Diameter", 0, Q("8 mm")))
sketch11.addConstraint(Sketcher.Constraint("DistanceY", -1, 1, 0, 3, Q("48 mm")))
pocket6 = body.newObject("PartDesign::Pocket", "Pocket005")
pocket6.Profile = sketch11
pocket6.Type = "ThroughAll"
pocket6.Reversed = True
doc.recompute()

mirrored2 = body.newObject("PartDesign::Mirrored", "Mirrored001")
mirrored2.Originals = [pocket5, pocket6]
mirrored2.MirrorPlane = (doc.getObject("XY_Plane"), [""])
body.Tip = mirrored2

# Sketch on XZ plane
sketch12 = body.newObject("Sketcher::SketchObject", "Sketch011")
sketch12.AttachmentSupport = (doc.getObject("XZ_Plane"), [""])
sketch12.MapMode = "FlatFace"
add_polygon(sketch12, [(-26, -24), (-26, -38), (-20, -38), (-20, -24)])  # lines 0-3
sketch12.addConstraint(Sketcher.Constraint("Vertical", 0))
sketch12.addConstraint(Sketcher.Constraint("Horizontal", 1))
sketch12.addConstraint(Sketcher.Constraint("Vertical", 2))
sketch12.addConstraint(Sketcher.Constraint("Horizontal", 3))
sketch12.addConstraint(Sketcher.Constraint("DistanceX", 1, 1, 1, 2, Q("6 mm")))
sketch12.addConstraint(Sketcher.Constraint("DistanceY", 0, 2, 0, 1, Q("14.4 mm")))
sketch12.addConstraint(Sketcher.Constraint("DistanceX", 0, 2, -1, 1, Q("26 mm")))
sketch12.addConstraint(Sketcher.Constraint("DistanceY", 0, 2, -1, 1, Q("38 mm")))
pocket7 = body.newObject("PartDesign::Pocket", "Pocket006")
pocket7.Profile = sketch12
pocket7.Type = "ThroughAll"

doc.recompute()
